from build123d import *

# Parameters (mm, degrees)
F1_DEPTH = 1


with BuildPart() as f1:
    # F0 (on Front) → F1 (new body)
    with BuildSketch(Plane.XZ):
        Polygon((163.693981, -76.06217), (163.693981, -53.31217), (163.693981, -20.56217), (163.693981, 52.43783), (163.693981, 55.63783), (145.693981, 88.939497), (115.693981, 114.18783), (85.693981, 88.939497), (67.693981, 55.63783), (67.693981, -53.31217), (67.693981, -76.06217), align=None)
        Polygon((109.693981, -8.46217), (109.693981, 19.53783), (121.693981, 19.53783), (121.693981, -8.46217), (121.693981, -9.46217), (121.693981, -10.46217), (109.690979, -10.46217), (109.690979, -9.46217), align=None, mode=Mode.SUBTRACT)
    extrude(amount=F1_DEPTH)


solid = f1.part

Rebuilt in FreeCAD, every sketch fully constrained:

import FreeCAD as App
import Part
import Sketcher
from FreeCAD import Vector
Q = App.Units.Quantity

doc = App.newDocument("Part")
body = doc.addObject("PartDesign::Body", "Body")

sketch1 = body.newObject("Sketcher::SketchObject", "Sketch")
sketch1.AttachmentSupport = (doc.getObject("XZ_Plane"), [""])
sketch1.MapMode = "FlatFace"
sketch1.addGeometry([
    Part.LineSegment(Vector(163.7, -76.1, 0), Vector(163.7, 55.6, 0)),
    Part.LineSegment(Vector(163.7, 55.6, 0), Vector(145.7, 88.9, 0)),
    Part.LineSegment(Vector(145.7, 88.9, 0), Vector(115.7, 114.2, 0)),
    Part.LineSegment(Vector(115.7, 114.2, 0), Vector(85.7, 88.9, 0)),
    Part.LineSegment(Vector(85.7, 88.9, 0), Vector(67.7, 55.6, 0)),
    Part.LineSegment(Vector(67.7, 55.6, 0), Vector(67.7, -76.1, 0)),
    Part.LineSegment(Vector(67.7, -76.1, 0), Vector(163.7, -76.1, 0)),
    Part.LineSegment(Vector(109.7, -9.5, 0), Vector(109.7, -8.5, 0)),
    Part.LineSegment(Vector(109.7, -8.5, 0), Vector(109.7, 19.5, 0)),
    Part.LineSegment(Vector(109.7, 19.5, 0), Vector(121.7, 19.5, 0)),
    Part.LineSegment(Vector(121.7, 19.5, 0), Vector(121.7, -10.5, 0)),
    Part.LineSegment(Vector(121.7, -10.5, 0), Vector(109.7, -10.5, 0)),
    Part.LineSegment(Vector(109.7, -10.5, 0), Vector(109.7, -9.5, 0)),
], False)
sketch1.addConstraint([
    Sketcher.Constraint("Coincident", 0, 2, 1, 1),
    Sketcher.Constraint("Coincident", 1, 2, 2, 1),
    Sketcher.Constraint("Coincident", 2, 2, 3, 1),
    Sketcher.Constraint("Coincident", 3, 2, 4, 1),
    Sketcher.Constraint("Coincident", 4, 2, 5, 1),
    Sketcher.Constraint("Coincident", 5, 2, 6, 1),
    Sketcher.Constraint("Coincident", 6, 2, 0, 1),
    Sketcher.Constraint("Coincident", 7, 2, 8, 1),
    Sketcher.Constraint("Coincident", 8, 2, 9, 1),
    Sketcher.Constraint("Coincident", 9, 2, 10, 1),
    Sketcher.Constraint("Coincident", 10, 2, 11, 1),
    Sketcher.Constraint("Coincident", 11, 2, 12, 1),
    Sketcher.Constraint("Coincident", 12, 2, 7, 1),
    Sketcher.Constraint("Vertical", 0),
    Sketcher.Constraint("Vertical", 5),
    Sketcher.Constraint("Horizontal", 6),
    Sketcher.Constraint("Vertical", 8),
    Sketcher.Constraint("Horizontal", 9),
    Sketcher.Constraint("Vertical", 10),
    Sketcher.Constraint("Horizontal", 11),
    Sketcher.Constraint("Vertical", 12),
    Sketcher.Constraint("Horizontal", 1, 2, 3, 2),
    Sketcher.Constraint("Horizontal", 0, 2, 4, 2),
    Sketcher.Constraint("Equal", 2, 3),
    Sketcher.Constraint("Equal", 1, 4),
    Sketcher.Constraint("DistanceX", 6, 1, 6, 2, Q("96 mm")),
    Sketcher.Constraint("DistanceX", 9, 1, 9, 2, Q("12 mm")),
    Sketcher.Constraint("DistanceY", 8, 1, 8, 2, Q("28 mm")),
    Sketcher.Constraint("DistanceY", 10, 2, 10, 1, Q("30 mm")),
    Sketcher.Constraint("DistanceY", 12, 1, 12, 2, Q("1 mm")),
    Sketcher.Constraint("DistanceY", 0, 1, 0, 2, Q("131.7 mm")),
    Sketcher.Constraint("DistanceX", 1, 2, 0, 2, Q("18 mm")),
    Sketcher.Constraint("DistanceX", 4, 2, 7, 2, Q("42 mm")),
    Sketcher.Constraint("DistanceY", 7, 2, 4, 2, Q("64.1 mm")),
    Sketcher.Constraint("DistanceX", 11, 2, 11, 1, Q("12.003002 mm")),
    Sketcher.Constraint("DistanceY", 0, 2, 2, 2, Q("58.55 mm")),
    Sketcher.Constraint("Distance", 1, Q("37.855 mm")),
    Sketcher.Constraint("DistanceX", -1, 1, 0, 2, Q("163.693981 mm")),
    Sketcher.Constraint("DistanceY", -1, 1, 0, 2, Q("55.63783 mm")),
])
pad1 = body.newObject("PartDesign::Pad", "Pad")
pad1.Profile = sketch1
pad1.Length = 1

doc.recompute()
